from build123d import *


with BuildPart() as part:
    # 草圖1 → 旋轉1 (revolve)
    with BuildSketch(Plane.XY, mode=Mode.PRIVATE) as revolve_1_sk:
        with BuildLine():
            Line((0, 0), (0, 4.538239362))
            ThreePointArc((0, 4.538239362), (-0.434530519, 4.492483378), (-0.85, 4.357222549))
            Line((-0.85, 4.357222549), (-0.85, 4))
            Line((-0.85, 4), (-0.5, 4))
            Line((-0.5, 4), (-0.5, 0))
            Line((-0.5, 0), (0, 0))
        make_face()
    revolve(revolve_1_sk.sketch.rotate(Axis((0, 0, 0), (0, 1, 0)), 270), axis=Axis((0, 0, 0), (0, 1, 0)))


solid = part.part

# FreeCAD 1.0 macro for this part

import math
import FreeCAD as App
import Part
import Sketcher

V = App.Vector

doc = App.newDocument("Part")
body = doc.addObject("PartDesign::Body", "Body")

# Sketch on XY plane
sketch1 = body.newObject("Sketcher::SketchObject", "Sketch")
sketch1.AttachmentSupport = (doc.getObject("XY_Plane"), [""])
sketch1.MapMode = "FlatFace"
sketch1.addGeometry([
    Part.LineSegment(V(0, 0, 0), V(0, 4.54, 0)),  # 0
    Part.ArcOfCircle(Part.Circle(V(0, 2.45, 0), V(0, 0, 1), 2.09), math.radians(90), math.radians(114)),  # 1
    Part.LineSegment(V(-0.85, 4.36, 0), V(-0.85, 4, 0)),  # 2
    Part.LineSegment(V(-0.85, 4, 0), V(-0.5, 4, 0)),  # 3
    Part.LineSegment(V(-0.5, 4, 0), V(-0.5, 0, 0)),  # 4
    Part.LineSegment(V(-0.5, 0, 0), V(0, 0, 0)),  # 5
], False)
sketch1.addConstraint([
    Sketcher.Constraint("Coincident", 0, 2, 1, 1),
    Sketcher.Constraint("Coincident", 1, 2, 2, 1),
    Sketcher.Constraint("Coincident", 2, 2, 3, 1),
    Sketcher.Constraint("Coincident", 3, 2, 4, 1),
    Sketcher.Constraint("Coincident", 4, 2, 5, 1),
    Sketcher.Constraint("Coincident", 5, 2, 0, 1),
    Sketcher.Constraint("Vertical", 0),
    Sketcher.Constraint("Vertical", 2),
    Sketcher.Constraint("Horizontal", 3),
    Sketcher.Constraint("Vertical", 4),
    Sketcher.Constraint("Horizontal", 5),
    Sketcher.Constraint("Coincident", 5, 2, -1, 1),
    Sketcher.Constraint("PointOnObject", 1, 3, -2),
    Sketcher.Constraint("DistanceY", 4, 2, 4, 1, 4.0),
    Sketcher.Constraint("DistanceX", 5, 1, 5, 2, 0.5),
    Sketcher.Constraint("DistanceX", 3, 1, 3, 2, 0.35),
    Sketcher.Constraint("Radius", 1, 2.086179),
    Sketcher.Constraint("DistanceY", 0, 1, 0, 2, 4.538239),
])
revolution = body.newObject("PartDesign::Revolution", "Revolution")
revolution.Profile = sketch1
revolution.ReferenceAxis = (sketch1, ["V_Axis"])
revolution.Angle = 360

doc.recompute()
